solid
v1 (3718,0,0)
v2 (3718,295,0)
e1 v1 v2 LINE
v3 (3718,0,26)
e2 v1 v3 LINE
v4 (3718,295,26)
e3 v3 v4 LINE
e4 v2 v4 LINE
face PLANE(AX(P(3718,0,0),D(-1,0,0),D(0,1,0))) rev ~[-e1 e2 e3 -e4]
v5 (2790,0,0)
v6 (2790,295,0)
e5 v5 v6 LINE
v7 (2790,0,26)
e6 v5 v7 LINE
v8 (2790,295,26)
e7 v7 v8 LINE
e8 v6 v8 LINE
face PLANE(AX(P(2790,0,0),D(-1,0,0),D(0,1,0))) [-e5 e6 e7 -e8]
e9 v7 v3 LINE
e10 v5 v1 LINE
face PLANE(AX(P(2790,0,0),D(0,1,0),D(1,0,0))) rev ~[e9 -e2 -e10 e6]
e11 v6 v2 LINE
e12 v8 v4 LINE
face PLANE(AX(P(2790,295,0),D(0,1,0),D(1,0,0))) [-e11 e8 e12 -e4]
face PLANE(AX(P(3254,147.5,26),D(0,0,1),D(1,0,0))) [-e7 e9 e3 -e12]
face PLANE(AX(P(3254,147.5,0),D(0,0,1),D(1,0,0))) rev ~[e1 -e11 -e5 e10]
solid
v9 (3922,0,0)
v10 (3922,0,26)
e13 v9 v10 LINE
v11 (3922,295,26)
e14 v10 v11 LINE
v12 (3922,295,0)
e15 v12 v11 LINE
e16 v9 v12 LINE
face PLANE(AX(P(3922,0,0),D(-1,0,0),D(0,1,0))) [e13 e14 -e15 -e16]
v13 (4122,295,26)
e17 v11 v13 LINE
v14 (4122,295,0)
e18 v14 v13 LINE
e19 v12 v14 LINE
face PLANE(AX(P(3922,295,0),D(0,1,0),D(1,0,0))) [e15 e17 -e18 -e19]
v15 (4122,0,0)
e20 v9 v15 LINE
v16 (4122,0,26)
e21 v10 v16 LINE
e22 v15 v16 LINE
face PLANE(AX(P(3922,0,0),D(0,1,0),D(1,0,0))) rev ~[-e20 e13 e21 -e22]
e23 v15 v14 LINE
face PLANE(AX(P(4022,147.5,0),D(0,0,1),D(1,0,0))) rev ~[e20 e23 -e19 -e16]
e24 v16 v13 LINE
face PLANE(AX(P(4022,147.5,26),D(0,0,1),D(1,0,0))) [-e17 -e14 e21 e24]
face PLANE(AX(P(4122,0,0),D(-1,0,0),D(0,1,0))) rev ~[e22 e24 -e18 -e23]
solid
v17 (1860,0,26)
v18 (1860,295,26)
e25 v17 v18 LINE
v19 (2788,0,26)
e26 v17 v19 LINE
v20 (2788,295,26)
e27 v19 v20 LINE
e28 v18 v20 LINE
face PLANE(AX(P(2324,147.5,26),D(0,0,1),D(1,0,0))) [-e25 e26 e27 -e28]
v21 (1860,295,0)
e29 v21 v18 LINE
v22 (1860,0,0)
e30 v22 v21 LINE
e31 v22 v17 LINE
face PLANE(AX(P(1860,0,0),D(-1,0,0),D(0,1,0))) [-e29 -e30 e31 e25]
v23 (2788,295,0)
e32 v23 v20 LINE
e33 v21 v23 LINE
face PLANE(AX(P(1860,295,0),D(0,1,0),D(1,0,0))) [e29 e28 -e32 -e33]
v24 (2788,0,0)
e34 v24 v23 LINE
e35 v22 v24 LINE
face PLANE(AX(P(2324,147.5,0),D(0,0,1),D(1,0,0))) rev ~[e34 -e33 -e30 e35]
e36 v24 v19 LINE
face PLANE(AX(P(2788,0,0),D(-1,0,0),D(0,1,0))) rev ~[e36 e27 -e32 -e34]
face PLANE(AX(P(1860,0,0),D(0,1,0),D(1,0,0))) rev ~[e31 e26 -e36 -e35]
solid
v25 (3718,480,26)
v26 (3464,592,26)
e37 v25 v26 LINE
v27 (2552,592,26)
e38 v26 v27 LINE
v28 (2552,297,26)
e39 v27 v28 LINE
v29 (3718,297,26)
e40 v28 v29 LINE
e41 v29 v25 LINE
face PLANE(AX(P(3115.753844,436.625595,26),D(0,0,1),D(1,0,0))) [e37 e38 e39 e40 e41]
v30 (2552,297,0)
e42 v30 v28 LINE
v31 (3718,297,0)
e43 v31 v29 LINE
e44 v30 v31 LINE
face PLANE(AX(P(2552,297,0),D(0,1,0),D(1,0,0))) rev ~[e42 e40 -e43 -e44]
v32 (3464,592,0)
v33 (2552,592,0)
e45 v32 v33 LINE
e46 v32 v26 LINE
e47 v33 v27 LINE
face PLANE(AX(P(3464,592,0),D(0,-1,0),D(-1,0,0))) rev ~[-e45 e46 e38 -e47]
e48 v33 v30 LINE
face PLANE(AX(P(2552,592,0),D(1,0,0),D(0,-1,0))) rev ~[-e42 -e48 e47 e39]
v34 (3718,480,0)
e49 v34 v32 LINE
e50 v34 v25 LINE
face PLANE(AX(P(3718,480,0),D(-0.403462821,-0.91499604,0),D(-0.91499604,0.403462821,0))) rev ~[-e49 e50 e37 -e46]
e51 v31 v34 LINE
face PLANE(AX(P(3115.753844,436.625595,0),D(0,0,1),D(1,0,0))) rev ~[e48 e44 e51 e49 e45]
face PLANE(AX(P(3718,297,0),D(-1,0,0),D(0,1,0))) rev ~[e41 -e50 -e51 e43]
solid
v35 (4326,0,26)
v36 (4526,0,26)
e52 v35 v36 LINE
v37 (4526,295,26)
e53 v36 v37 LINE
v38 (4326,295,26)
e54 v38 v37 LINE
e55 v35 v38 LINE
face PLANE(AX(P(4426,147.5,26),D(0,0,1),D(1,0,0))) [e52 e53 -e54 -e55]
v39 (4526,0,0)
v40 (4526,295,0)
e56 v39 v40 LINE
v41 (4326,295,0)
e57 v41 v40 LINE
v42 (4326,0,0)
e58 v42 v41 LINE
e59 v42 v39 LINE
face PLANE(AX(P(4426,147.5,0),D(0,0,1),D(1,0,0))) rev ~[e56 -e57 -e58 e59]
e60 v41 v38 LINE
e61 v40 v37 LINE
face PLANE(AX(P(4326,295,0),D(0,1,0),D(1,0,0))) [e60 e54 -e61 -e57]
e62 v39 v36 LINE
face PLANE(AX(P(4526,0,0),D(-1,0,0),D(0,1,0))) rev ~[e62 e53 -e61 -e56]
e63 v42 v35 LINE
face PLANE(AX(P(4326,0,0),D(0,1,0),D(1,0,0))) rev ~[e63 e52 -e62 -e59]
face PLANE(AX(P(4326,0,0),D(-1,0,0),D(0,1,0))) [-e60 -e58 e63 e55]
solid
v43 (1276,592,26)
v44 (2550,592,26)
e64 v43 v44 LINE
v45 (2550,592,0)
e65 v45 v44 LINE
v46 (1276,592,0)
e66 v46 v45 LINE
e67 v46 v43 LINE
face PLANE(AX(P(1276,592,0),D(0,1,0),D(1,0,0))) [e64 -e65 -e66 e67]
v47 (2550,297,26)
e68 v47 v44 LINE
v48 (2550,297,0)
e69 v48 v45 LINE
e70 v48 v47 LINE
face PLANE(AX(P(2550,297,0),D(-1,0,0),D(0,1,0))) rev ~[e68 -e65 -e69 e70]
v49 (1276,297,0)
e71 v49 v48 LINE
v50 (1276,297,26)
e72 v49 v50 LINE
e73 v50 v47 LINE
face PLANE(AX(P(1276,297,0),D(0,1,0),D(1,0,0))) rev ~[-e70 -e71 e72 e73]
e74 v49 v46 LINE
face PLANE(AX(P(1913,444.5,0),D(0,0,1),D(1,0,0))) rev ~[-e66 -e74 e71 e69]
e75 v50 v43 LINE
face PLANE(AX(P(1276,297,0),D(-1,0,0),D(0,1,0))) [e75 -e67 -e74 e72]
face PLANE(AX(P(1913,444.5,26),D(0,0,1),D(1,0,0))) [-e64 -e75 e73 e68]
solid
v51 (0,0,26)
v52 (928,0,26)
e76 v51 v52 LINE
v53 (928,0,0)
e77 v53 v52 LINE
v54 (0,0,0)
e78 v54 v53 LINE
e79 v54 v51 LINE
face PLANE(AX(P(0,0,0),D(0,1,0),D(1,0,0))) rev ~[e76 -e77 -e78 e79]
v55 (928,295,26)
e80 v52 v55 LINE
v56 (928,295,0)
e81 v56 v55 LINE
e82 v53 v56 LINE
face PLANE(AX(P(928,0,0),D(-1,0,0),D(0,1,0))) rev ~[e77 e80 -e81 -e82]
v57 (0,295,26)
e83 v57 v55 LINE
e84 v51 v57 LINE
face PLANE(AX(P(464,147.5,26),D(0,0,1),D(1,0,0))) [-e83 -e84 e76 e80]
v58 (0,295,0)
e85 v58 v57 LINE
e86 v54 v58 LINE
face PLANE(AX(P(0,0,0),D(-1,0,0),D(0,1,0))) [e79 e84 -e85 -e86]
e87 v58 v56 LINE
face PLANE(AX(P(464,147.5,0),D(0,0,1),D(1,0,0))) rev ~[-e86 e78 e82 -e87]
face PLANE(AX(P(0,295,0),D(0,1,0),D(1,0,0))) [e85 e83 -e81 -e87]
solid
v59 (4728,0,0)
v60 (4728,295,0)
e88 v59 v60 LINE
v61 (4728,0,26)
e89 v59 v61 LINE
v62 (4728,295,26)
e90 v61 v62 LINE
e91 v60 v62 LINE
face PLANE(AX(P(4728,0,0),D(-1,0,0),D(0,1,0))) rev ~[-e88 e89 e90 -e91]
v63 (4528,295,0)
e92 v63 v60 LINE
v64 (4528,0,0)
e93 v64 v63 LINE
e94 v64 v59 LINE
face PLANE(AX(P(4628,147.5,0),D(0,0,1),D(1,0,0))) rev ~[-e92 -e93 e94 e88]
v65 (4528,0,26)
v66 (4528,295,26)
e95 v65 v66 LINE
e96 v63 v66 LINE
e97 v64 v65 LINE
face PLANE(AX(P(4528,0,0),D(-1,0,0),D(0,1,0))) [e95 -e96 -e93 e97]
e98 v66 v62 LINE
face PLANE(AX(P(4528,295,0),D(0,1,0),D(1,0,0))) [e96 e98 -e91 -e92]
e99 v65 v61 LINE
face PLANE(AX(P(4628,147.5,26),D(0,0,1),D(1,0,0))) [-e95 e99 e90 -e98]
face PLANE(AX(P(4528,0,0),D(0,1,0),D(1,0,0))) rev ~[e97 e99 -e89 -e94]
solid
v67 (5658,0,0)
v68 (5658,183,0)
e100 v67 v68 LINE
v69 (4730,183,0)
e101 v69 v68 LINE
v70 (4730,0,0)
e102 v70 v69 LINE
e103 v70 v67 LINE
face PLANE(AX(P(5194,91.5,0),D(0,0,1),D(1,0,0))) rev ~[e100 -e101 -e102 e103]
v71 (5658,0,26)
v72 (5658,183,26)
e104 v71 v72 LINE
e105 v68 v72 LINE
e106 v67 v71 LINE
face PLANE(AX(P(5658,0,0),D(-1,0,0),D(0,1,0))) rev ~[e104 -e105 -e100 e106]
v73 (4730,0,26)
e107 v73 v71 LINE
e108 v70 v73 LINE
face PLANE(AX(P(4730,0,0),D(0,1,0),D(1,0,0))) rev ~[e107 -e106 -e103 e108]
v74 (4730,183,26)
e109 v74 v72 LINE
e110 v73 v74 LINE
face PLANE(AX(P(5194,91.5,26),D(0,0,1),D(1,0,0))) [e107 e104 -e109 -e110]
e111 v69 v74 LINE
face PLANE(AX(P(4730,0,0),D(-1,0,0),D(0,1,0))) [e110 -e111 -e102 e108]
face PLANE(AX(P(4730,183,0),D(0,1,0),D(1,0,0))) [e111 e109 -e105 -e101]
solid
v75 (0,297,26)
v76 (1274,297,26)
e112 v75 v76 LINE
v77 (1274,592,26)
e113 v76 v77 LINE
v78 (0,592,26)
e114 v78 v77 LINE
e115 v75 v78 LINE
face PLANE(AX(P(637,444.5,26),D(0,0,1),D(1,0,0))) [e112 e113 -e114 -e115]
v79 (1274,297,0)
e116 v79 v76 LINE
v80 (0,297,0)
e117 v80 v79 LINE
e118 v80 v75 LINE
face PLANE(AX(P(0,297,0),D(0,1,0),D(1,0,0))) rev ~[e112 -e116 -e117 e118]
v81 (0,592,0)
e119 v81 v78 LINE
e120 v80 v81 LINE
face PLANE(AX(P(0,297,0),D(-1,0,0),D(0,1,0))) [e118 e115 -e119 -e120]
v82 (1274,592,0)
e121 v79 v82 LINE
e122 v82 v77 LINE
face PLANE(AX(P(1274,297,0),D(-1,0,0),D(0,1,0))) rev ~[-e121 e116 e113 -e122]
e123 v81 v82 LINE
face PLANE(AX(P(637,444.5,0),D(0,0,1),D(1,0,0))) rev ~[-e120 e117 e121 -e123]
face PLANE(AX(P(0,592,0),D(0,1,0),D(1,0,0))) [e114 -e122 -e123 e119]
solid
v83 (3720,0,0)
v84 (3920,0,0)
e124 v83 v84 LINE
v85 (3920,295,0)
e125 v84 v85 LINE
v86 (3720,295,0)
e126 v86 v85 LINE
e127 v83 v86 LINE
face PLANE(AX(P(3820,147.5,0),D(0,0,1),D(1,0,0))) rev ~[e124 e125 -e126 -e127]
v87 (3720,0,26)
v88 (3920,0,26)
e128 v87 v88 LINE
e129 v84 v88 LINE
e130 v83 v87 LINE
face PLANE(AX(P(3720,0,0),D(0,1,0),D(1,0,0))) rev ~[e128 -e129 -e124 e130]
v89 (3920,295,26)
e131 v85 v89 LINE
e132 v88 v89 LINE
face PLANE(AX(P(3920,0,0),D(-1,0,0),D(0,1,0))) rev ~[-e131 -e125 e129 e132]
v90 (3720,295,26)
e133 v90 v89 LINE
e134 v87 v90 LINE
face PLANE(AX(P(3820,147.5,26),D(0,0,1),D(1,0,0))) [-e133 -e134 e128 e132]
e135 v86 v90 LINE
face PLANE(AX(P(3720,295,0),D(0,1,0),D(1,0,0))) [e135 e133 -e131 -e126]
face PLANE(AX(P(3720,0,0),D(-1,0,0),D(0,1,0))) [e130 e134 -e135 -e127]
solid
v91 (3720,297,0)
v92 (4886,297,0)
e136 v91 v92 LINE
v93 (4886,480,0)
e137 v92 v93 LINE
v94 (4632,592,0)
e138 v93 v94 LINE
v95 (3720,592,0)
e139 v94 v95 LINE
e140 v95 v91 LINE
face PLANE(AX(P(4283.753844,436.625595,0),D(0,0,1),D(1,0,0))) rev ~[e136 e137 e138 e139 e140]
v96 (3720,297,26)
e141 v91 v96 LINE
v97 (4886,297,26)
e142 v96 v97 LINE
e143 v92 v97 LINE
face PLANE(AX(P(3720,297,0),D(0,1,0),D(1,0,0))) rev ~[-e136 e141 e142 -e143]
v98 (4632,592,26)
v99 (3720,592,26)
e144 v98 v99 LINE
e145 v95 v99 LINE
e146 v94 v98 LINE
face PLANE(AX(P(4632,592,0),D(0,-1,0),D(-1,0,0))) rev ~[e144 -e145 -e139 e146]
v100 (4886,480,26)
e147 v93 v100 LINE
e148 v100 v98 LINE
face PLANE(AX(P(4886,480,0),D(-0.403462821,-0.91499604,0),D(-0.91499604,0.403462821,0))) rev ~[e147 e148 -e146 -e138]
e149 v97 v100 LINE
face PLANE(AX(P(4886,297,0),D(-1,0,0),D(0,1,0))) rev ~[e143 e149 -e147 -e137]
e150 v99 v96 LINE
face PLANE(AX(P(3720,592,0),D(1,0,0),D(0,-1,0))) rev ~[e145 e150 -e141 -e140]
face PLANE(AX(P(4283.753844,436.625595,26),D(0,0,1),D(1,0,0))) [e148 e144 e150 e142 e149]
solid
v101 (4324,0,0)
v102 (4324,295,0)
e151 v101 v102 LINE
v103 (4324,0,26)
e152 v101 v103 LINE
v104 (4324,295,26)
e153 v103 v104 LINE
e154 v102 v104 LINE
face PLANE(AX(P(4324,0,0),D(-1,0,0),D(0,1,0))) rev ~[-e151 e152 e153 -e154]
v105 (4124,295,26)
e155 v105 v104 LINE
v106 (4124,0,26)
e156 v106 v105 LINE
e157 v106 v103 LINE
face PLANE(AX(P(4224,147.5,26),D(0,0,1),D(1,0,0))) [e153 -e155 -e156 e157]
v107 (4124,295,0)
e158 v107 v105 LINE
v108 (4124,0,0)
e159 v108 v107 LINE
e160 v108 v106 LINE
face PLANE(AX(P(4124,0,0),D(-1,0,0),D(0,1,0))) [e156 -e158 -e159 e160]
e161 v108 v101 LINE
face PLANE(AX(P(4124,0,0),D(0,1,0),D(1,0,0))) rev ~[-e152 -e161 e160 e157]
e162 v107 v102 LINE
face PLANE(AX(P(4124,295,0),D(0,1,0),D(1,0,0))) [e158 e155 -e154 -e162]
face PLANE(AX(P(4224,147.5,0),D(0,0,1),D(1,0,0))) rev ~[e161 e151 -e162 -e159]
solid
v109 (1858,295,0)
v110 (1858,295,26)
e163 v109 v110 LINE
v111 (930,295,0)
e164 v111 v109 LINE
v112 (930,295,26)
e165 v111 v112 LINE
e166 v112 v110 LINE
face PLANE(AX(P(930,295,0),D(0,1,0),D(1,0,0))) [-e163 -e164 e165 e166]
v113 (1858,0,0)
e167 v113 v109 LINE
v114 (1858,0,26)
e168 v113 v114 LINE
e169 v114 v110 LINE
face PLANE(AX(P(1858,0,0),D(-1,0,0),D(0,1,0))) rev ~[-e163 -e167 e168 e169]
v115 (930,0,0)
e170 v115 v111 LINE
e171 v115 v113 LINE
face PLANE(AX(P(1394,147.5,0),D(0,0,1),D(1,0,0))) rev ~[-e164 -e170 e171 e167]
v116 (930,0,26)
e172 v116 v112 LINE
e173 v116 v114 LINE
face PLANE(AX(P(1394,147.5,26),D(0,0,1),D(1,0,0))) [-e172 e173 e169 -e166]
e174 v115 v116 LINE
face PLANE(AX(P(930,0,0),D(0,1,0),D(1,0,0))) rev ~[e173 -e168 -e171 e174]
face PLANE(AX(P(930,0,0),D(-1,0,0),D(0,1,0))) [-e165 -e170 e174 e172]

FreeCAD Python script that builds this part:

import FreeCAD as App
import Part
import Sketcher

V = App.Vector


def add_polygon(sketch, points):
    """Adds a closed chain of lines whose ends are joined by coincident constraints."""
    first, n = sketch.GeometryCount, len(points)
    for a, b in zip(points, points[1:] + points[:1]):
        sketch.addGeometry(Part.LineSegment(App.Vector(*a, 0), App.Vector(*b, 0)), False)
    for i in range(n):
        sketch.addConstraint(Sketcher.Constraint("Coincident", first + i, 2, first + (i + 1) % n, 1))

doc = App.newDocument("Part")
params = doc.addObject("Spreadsheet::Sheet", "Params")
for row, (alias, value) in enumerate([
    ("sketch1_width", "928 mm"),
    ("sketch1_width2", "1274 mm"),
    ("sketch1_width3", "1166 mm"),
    ("sketch1_width4", "912 mm"),
    ("sketch1_width5", "200 mm"),
    ("pad1_length", "26 mm"),
], start=1):
    params.set(f"A{row}", alias)
    params.set(f"B{row}", "=" + value)
    params.setAlias(f"B{row}", alias)

body = doc.addObject("PartDesign::Body", "Body")
body.AllowCompound = True

# Sketch on XY plane
sketch1 = doc.addObject("Sketcher::SketchObject", "Sketch")
body.addObject(sketch1)
sketch1.AttachmentSupport = (doc.XY_Plane, [""])
sketch1.MapMode = "FlatFace"
add_polygon(sketch1, [(0, 295), (0, 0), (928, 0), (928, 295)])  # lines 0-3
add_polygon(sketch1, [(930, 295), (930, 0), (1858, 0), (1858, 295)])  # lines 4-7
add_polygon(sketch1, [(1860, 295), (1860, 0), (2788, 0), (2788, 295)])  # lines 8-11
add_polygon(sketch1, [(2790, 295), (2790, 0), (3718, 0), (3718, 295)])  # lines 12-15
add_polygon(sketch1, [(0, 592), (0, 297), (1274, 297), (1274, 592)])  # lines 16-19
add_polygon(sketch1, [(1276, 592), (1276, 297), (2550, 297), (2550, 592)])  # lines 20-23
add_polygon(sketch1, [(2552, 592), (2552, 297), (3718, 297), (3718, 480), (3464, 592)])  # lines 24-28
add_polygon(sketch1, [(3720, 295), (3720, 0), (3920, 0), (3920, 295)])  # lines 29-32
add_polygon(sketch1, [(3922, 295), (3922, 0), (4122, 0), (4122, 295)])  # lines 33-36
add_polygon(sketch1, [(4124, 295), (4124, 0), (4324, 0), (4324, 295)])  # lines 37-40
add_polygon(sketch1, [(4326, 295), (4326, 0), (4526, 0), (4526, 295)])  # lines 41-44
add_polygon(sketch1, [(4528, 295), (4528, 0), (4728, 0), (4728, 295)])  # lines 45-48
add_polygon(sketch1, [(4730, 183), (4730, 0), (5658, 0), (5658, 183)])  # lines 49-52
add_polygon(sketch1, [(4886, 297), (4886, 480), (4632, 592), (3720, 592), (3720, 297)])  # lines 53-57
sketch1.addConstraint(Sketcher.Constraint("Vertical", 0))
sketch1.addConstraint(Sketcher.Constraint("Horizontal", 1))
sketch1.addConstraint(Sketcher.Constraint("Vertical", 2))
sketch1.addConstraint(Sketcher.Constraint("Horizontal", 3))
sketch1.addConstraint(Sketcher.Constraint("Vertical", 4))
sketch1.addConstraint(Sketcher.Constraint("Horizontal", 5))
sketch1.addConstraint(Sketcher.Constraint("Vertical", 6))
sketch1.addConstraint(Sketcher.Constraint("Horizontal", 7))
sketch1.addConstraint(Sketcher.Constraint("Vertical", 8))
sketch1.addConstraint(Sketcher.Constraint("Horizontal", 9))
sketch1.addConstraint(Sketcher.Constraint("Vertical", 10))
sketch1.addConstraint(Sketcher.Constraint("Horizontal", 11))
sketch1.addConstraint(Sketcher.Constraint("Vertical", 12))
sketch1.addConstraint(Sketcher.Constraint("Horizontal", 13))
sketch1.addConstraint(Sketcher.Constraint("Vertical", 14))
sketch1.addConstraint(Sketcher.Constraint("Horizontal", 15))
sketch1.addConstraint(Sketcher.Constraint("Vertical", 16))
sketch1.addConstraint(Sketcher.Constraint("Horizontal", 17))
sketch1.addConstraint(Sketcher.Constraint("Vertical", 18))
sketch1.addConstraint(Sketcher.Constraint("Horizontal", 19))
sketch1.addConstraint(Sketcher.Constraint("Vertical", 20))
sketch1.addConstraint(Sketcher.Constraint("Horizontal", 21))
sketch1.addConstraint(Sketcher.Constraint("Vertical", 22))
sketch1.addConstraint(Sketcher.Constraint("Horizontal", 23))
sketch1.addConstraint(Sketcher.Constraint("Vertical", 24))
sketch1.addConstraint(Sketcher.Constraint("Horizontal", 25))
sketch1.addConstraint(Sketcher.Constraint("Vertical", 26))
sketch1.addConstraint(Sketcher.Constraint("Horizontal", 28))
sketch1.addConstraint(Sketcher.Constraint("Vertical", 29))
sketch1.addConstraint(Sketcher.Constraint("Horizontal", 30))
sketch1.addConstraint(Sketcher.Constraint("Vertical", 31))
sketch1.addConstraint(Sketcher.Constraint("Horizontal", 32))
sketch1.addConstraint(Sketcher.Constraint("Vertical", 33))
sketch1.addConstraint(Sketcher.Constraint("Horizontal", 34))
sketch1.addConstraint(Sketcher.Constraint("Vertical", 35))
sketch1.addConstraint(Sketcher.Constraint("Horizontal", 36))
sketch1.addConstraint(Sketcher.Constraint("Vertical", 37))
sketch1.addConstraint(Sketcher.Constraint("Horizontal", 38))
sketch1.addConstraint(Sketcher.Constraint("Vertical", 39))
sketch1.addConstraint(Sketcher.Constraint("Horizontal", 40))
sketch1.addConstraint(Sketcher.Constraint("Vertical", 41))
sketch1.addConstraint(Sketcher.Constraint("Horizontal", 42))
sketch1.addConstraint(Sketcher.Constraint("Vertical", 43))
sketch1.addConstraint(Sketcher.Constraint("Horizontal", 44))
sketch1.addConstraint(Sketcher.Constraint("Vertical", 45))
sketch1.addConstraint(Sketcher.Constraint("Horizontal", 46))
sketch1.addConstraint(Sketcher.Constraint("Vertical", 47))
sketch1.addConstraint(Sketcher.Constraint("Horizontal", 48))
sketch1.addConstraint(Sketcher.Constraint("Vertical", 49))
sketch1.addConstraint(Sketcher.Constraint("Horizontal", 50))
sketch1.addConstraint(Sketcher.Constraint("Vertical", 51))
sketch1.addConstraint(Sketcher.Constraint("Horizontal", 52))
sketch1.addConstraint(Sketcher.Constraint("Vertical", 53))
sketch1.addConstraint(Sketcher.Constraint("Horizontal", 55))
sketch1.addConstraint(Sketcher.Constraint("Vertical", 56))
sketch1.addConstraint(Sketcher.Constraint("Horizontal", 57))
sketch1.addConstraint(Sketcher.Constraint("Coincident", 0, 2, -1, 1))
sketch1.addConstraint(Sketcher.Constraint("PointOnObject", 4, 2, -1))
sketch1.addConstraint(Sketcher.Constraint("PointOnObject", 8, 2, -1))
sketch1.addConstraint(Sketcher.Constraint("PointOnObject", 12, 2, -1))
sketch1.addConstraint(Sketcher.Constraint("PointOnObject", 16, 2, -2))
sketch1.addConstraint(Sketcher.Constraint("PointOnObject", 29, 2, -1))
sketch1.addConstraint(Sketcher.Constraint("PointOnObject", 33, 2, -1))
sketch1.addConstraint(Sketcher.Constraint("PointOnObject", 37, 2, -1))
sketch1.addConstraint(Sketcher.Constraint("PointOnObject", 41, 2, -1))
sketch1.addConstraint(Sketcher.Constraint("PointOnObject", 45, 2, -1))
sketch1.addConstraint(Sketcher.Constraint("PointOnObject", 49, 2, -1))
sketch1.addConstraint(Sketcher.Constraint("Parallel", 27, 54))
sketch1.addConstraint(Sketcher.Constraint("Horizontal", 3, 2, 6, 2))
sketch1.addConstraint(Sketcher.Constraint("Horizontal", 7, 2, 10, 2))
sketch1.addConstraint(Sketcher.Constraint("Horizontal", 11, 2, 14, 2))
sketch1.addConstraint(Sketcher.Constraint("Horizontal", 17, 2, 20, 2))
sketch1.addConstraint(Sketcher.Constraint("Horizontal", 19, 2, 22, 2))
sketch1.addConstraint(Sketcher.Constraint("Horizontal", 21, 2, 24, 2))
sketch1.addConstraint(Sketcher.Constraint("Horizontal", 23, 2, 27, 2))
sketch1.addConstraint(Sketcher.Constraint("Horizontal", 15, 2, 31, 2))
sketch1.addConstraint(Sketcher.Constraint("Horizontal", 32, 2, 35, 2))
sketch1.addConstraint(Sketcher.Constraint("Horizontal", 36, 2, 39, 2))
sketch1.addConstraint(Sketcher.Constraint("Horizontal", 40, 2, 43, 2))
sketch1.addConstraint(Sketcher.Constraint("Horizontal", 44, 2, 47, 2))
sketch1.addConstraint(Sketcher.Constraint("Horizontal", 26, 2, 53, 2))
sketch1.addConstraint(Sketcher.Constraint("Horizontal", 28, 2, 54, 2))
sketch1.addConstraint(Sketcher.Constraint("Horizontal", 25, 2, 56, 2))
sketch1.addConstraint(Sketcher.Constraint("Vertical", 14, 2, 25, 2))
sketch1.addConstraint(Sketcher.Constraint("Vertical", 32, 2, 55, 2))
sketch1.addConstraint(Sketcher.Constraint("Equal", 3, 5))
sketch1.addConstraint(Sketcher.Constraint("Equal", 7, 9))
sketch1.addConstraint(Sketcher.Constraint("Equal", 11, 13))
sketch1.addConstraint(Sketcher.Constraint("Equal", 19, 21))
sketch1.addConstraint(Sketcher.Constraint("Equal", 32, 34))
sketch1.addConstraint(Sketcher.Constraint("Equal", 36, 38))
sketch1.addConstraint(Sketcher.Constraint("Equal", 40, 42))
sketch1.addConstraint(Sketcher.Constraint("Equal", 44, 46))
sketch1.addConstraint(Sketcher.Constraint("Equal", 15, 50))
sketch1.addConstraint(Sketcher.Constraint("Equal", 28, 55))
sketch1.addConstraint(Sketcher.Constraint("Equal", 14, 16))
sketch1.addConstraint(Sketcher.Constraint("Equal", 26, 49))
sketch1.addConstraint(Sketcher.Constraint("DistanceX", 1, 1, 1, 2, 928.0))
sketch1.addConstraint(Sketcher.Constraint("DistanceX", 17, 1, 17, 2, 1274.0))
sketch1.addConstraint(Sketcher.Constraint("DistanceX", 25, 1, 25, 2, 1166.0))
sketch1.addConstraint(Sketcher.Constraint("DistanceX", 28, 2, 28, 1, 912.0))
sketch1.addConstraint(Sketcher.Constraint("DistanceX", 30, 1, 30, 2, 200.0))
sketch1.addConstraint(Sketcher.Constraint("DistanceY", 0, 2, 0, 1, 295.0))
sketch1.addConstraint(Sketcher.Constraint("DistanceY", 26, 1, 26, 2, 183.0))
sketch1.addConstraint(Sketcher.Constraint("DistanceX", -1, 1, 4, 2, 930.0))
sketch1.addConstraint(Sketcher.Constraint("DistanceX", -1, 1, 8, 2, 1860.0))
sketch1.addConstraint(Sketcher.Constraint("DistanceX", -1, 1, 12, 2, 2790.0))
sketch1.addConstraint(Sketcher.Constraint("DistanceY", -1, 1, 16, 2, 297.0))
sketch1.addConstraint(Sketcher.Constraint("DistanceX", -1, 1, 20, 2, 1276.0))
sketch1.addConstraint(Sketcher.Constraint("DistanceX", -1, 1, 29, 2, 3720.0))
sketch1.addConstraint(Sketcher.Constraint("DistanceX", -1, 1, 33, 2, 3922.0))
sketch1.addConstraint(Sketcher.Constraint("DistanceX", -1, 1, 37, 2, 4124.0))
sketch1.addConstraint(Sketcher.Constraint("DistanceX", -1, 1, 41, 2, 4326.0))
sketch1.addConstraint(Sketcher.Constraint("DistanceX", -1, 1, 45, 2, 4528.0))
sketch1.addConstraint(Sketcher.Constraint("DistanceX", -1, 1, 49, 2, 4730.0))
sketch1.setExpression("Constraints[155]", "Params.sketch1_width")
sketch1.setExpression("Constraints[156]", "Params.sketch1_width2")
sketch1.setExpression("Constraints[157]", "Params.sketch1_width3")
sketch1.setExpression("Constraints[158]", "Params.sketch1_width4")
sketch1.setExpression("Constraints[159]", "Params.sketch1_width5")
pad1 = doc.addObject("PartDesign::Pad", "Pad")
body.addObject(pad1)
pad1.Profile = sketch1
pad1.setExpression("Length", "Params.pad1_length")

doc.recompute()
